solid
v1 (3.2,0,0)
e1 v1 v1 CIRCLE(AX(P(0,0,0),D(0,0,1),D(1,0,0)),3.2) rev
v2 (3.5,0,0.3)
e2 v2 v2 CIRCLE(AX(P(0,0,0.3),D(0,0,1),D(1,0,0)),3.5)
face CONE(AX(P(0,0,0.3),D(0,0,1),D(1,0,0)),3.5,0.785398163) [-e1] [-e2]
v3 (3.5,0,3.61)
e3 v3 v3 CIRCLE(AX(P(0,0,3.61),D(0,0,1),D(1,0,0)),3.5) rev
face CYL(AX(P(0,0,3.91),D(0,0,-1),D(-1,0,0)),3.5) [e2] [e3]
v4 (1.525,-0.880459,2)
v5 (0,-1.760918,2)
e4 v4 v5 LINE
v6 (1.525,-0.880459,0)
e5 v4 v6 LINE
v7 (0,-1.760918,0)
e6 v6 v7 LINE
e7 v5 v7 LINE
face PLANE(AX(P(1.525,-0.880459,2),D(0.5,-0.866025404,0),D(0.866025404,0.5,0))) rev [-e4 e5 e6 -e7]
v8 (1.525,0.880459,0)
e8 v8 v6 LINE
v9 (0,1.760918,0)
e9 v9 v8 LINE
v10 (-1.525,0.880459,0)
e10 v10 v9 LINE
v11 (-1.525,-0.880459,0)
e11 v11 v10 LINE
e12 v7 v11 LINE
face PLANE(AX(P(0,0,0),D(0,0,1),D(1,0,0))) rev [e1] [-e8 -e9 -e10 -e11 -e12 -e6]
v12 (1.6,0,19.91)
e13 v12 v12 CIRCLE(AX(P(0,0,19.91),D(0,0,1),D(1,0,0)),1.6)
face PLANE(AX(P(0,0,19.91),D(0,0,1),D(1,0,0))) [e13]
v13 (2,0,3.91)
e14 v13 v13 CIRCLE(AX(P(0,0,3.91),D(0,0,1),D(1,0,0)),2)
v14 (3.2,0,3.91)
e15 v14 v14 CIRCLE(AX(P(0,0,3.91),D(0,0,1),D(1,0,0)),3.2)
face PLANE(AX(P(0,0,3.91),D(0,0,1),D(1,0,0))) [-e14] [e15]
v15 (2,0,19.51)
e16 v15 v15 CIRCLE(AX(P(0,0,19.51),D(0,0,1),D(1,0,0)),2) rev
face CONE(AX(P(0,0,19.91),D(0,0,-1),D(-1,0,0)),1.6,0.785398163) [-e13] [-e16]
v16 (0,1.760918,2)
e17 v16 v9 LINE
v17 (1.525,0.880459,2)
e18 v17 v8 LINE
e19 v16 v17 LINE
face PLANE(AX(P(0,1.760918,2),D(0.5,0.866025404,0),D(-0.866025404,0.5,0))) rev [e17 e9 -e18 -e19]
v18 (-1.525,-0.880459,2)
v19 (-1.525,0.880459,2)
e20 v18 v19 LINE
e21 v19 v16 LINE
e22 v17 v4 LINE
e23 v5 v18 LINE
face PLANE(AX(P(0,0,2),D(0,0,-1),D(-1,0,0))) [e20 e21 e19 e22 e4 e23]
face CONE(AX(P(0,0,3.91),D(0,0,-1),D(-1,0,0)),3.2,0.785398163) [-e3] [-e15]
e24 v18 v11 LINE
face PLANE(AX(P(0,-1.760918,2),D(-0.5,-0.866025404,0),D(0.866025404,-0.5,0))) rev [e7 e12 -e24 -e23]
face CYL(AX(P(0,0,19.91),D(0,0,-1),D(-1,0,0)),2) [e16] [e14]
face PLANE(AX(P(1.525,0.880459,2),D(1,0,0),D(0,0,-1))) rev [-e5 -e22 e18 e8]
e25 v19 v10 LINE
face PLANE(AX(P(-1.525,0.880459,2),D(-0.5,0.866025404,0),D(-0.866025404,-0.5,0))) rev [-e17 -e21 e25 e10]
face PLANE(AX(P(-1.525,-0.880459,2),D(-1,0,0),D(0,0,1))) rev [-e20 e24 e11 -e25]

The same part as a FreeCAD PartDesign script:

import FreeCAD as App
import Part
import Sketcher
Q = App.Units.Quantity


def edges_at(feature, points):
    """Names of the edges that pass closest to the given points."""
    edges = feature.Shape.Edges
    near = lambda p: min(range(len(edges)), key=lambda i: edges[i].distToShape(Part.Vertex(*p))[0])
    return sorted({f"Edge{near(p) + 1}" for p in points})


def add_polygon(sketch, points):
    """Adds a closed chain of lines whose ends are joined by coincident constraints."""
    first, n = sketch.GeometryCount, len(points)
    for a, b in zip(points, points[1:] + points[:1]):
        sketch.addGeometry(Part.LineSegment(App.Vector(*a, 0), App.Vector(*b, 0)), False)
    for i in range(n):
        sketch.addConstraint(Sketcher.Constraint("Coincident", first + i, 2, first + (i + 1) % n, 1))

doc = App.newDocument("Part")
body = doc.addObject("PartDesign::Body", "Body")

# Sketch on XY plane
sketch1 = body.newObject("Sketcher::SketchObject", "Sketch")
sketch1.AttachmentSupport = (doc.getObject("XY_Plane"), [""])
sketch1.MapMode = "FlatFace"
sketch1.addGeometry(Part.Circle(App.Vector(0, 0, 0), App.Vector(0, 0, 1), 3.5), False)
sketch1.addConstraint([
    Sketcher.Constraint("Coincident", 0, 3, -1, 1),
    Sketcher.Constraint("Diameter", 0, Q("7 mm")),
])
pad1 = body.newObject("PartDesign::Pad", "Pad")
pad1.Profile = sketch1
pad1.Length = 3.91

# Sketch on XY plane
sketch2 = body.newObject("Sketcher::SketchObject", "Sketch001")
sketch2.AttachmentSupport = (doc.getObject("XY_Plane"), [""])
sketch2.MapMode = "FlatFace"
sketch2.AttachmentOffset = App.Placement(App.Vector(0, 0, 3.91), App.Rotation())
sketch2.addGeometry(Part.Circle(App.Vector(0, 0, 0), App.Vector(0, 0, 1), 2), False)
sketch2.addConstraint([
    Sketcher.Constraint("Coincident", 0, 3, -1, 1),
    Sketcher.Constraint("Diameter", 0, Q("4 mm")),
])
pad2 = body.newObject("PartDesign::Pad", "Pad001")
pad2.Profile = sketch2
pad2.Length = 16

# Sketch on XY plane
sketch3 = body.newObject("Sketcher::SketchObject", "Sketch002")
sketch3.AttachmentSupport = (doc.getObject("XY_Plane"), [""])
sketch3.MapMode = "FlatFace"
add_polygon(sketch3, [(0, 1.760918), (1.525, 0.880459), (1.525, -0.880459), (0, -1.760918), (-1.525, -0.880459), (-1.525, 0.880459)])  # lines 0-5
sketch3.addConstraint([
    Sketcher.Constraint("Vertical", 1),
    Sketcher.Constraint("Vertical", 4),
    Sketcher.Constraint("Symmetric", 0, 2, 3, 2, -1, 1),
    Sketcher.Constraint("Symmetric", 2, 2, 5, 2, -1, 1),
    Sketcher.Constraint("PointOnObject", 2, 2, -2),
    Sketcher.Constraint("Parallel", 2, 5),
    Sketcher.Constraint("Horizontal", 1, 2, 3, 2),
    Sketcher.Constraint("Angle", 0, Q("-30 deg")),
    Sketcher.Constraint("DistanceX", 3, 2, 1, 2, Q("3.05 mm")),
    Sketcher.Constraint("DistanceY", 1, 2, 1, 1, Q("1.760918 mm")),
])
pocket1 = body.newObject("PartDesign::Pocket", "Pocket")
pocket1.Profile = sketch3
pocket1.Length = 2
pocket1.Reversed = True
doc.recompute()

chamfer = body.newObject("PartDesign::Chamfer", "Chamfer")
chamfer.Base = (pocket1, edges_at(pocket1, [(-2, 0, 19.91)]))
chamfer.Size = 0.4
doc.recompute()

chamfer2 = body.newObject("PartDesign::Chamfer", "Chamfer001")
chamfer2.Base = (chamfer, edges_at(chamfer, [(-3.5, 0, 0), (-3.5, 0, 3.91)]))
chamfer2.Size = 0.3

doc.recompute()
